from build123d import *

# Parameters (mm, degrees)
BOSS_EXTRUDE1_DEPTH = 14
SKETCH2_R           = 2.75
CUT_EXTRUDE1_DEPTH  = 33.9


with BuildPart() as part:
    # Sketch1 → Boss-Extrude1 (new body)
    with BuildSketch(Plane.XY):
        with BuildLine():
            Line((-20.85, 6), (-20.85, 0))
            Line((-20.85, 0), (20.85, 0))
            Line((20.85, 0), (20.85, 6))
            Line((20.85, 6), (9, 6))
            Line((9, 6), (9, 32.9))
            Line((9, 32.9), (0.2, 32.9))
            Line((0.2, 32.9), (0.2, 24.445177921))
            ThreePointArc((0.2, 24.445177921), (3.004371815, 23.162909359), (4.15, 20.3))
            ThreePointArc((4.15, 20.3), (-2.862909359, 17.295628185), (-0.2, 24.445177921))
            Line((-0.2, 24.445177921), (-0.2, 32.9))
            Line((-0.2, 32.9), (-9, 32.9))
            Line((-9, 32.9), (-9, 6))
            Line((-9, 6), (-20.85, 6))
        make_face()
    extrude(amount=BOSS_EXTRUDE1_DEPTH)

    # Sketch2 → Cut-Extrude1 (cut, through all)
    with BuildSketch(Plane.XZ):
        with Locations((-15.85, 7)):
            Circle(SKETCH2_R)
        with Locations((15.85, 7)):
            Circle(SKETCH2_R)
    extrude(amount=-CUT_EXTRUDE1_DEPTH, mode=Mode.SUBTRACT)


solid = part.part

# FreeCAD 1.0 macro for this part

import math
import FreeCAD as App
import Part
import Sketcher

doc = App.newDocument("Part")
body = doc.addObject("PartDesign::Body", "Body")

# Sketch on XY plane
sketch1 = body.newObject("Sketcher::SketchObject", "Sketch")
sketch1.AttachmentSupport = (doc.getObject("XY_Plane"), [""])
sketch1.MapMode = "FlatFace"
sketch1.addGeometry([
    Part.LineSegment(App.Vector(-20.9, 6, 0), App.Vector(-20.9, 0, 0)),  # 0
    Part.LineSegment(App.Vector(-20.9, 0, 0), App.Vector(20.9, 0, 0)),  # 1
    Part.LineSegment(App.Vector(20.9, 0, 0), App.Vector(20.9, 6, 0)),  # 2
    Part.LineSegment(App.Vector(20.9, 6, 0), App.Vector(9, 6, 0)),  # 3
    Part.LineSegment(App.Vector(9, 6, 0), App.Vector(9, 32.9, 0)),  # 4
    Part.LineSegment(App.Vector(9, 32.9, 0), App.Vector(0.2, 32.9, 0)),  # 5
    Part.LineSegment(App.Vector(0.2, 32.9, 0), App.Vector(0.2, 24.4, 0)),  # 6
    Part.ArcOfCircle(Part.Circle(App.Vector(0, 20.3, 0), App.Vector(0, 0, 1), 4.1), math.radians(0), math.radians(87)),  # 7
    Part.ArcOfCircle(Part.Circle(App.Vector(0, 20.3, 0), App.Vector(0, 0, 1), 4.2), math.radians(93), math.radians(360)),  # 8
    Part.LineSegment(App.Vector(-0.2, 24.4, 0), App.Vector(-0.2, 32.9, 0)),  # 9
    Part.LineSegment(App.Vector(-0.2, 32.9, 0), App.Vector(-9, 32.9, 0)),  # 10
    Part.LineSegment(App.Vector(-9, 32.9, 0), App.Vector(-9, 6, 0)),  # 11
    Part.LineSegment(App.Vector(-9, 6, 0), App.Vector(-20.9, 6, 0)),  # 12
], False)
sketch1.addConstraint([
    Sketcher.Constraint("Coincident", 0, 2, 1, 1),
    Sketcher.Constraint("Coincident", 1, 2, 2, 1),
    Sketcher.Constraint("Coincident", 2, 2, 3, 1),
    Sketcher.Constraint("Coincident", 3, 2, 4, 1),
    Sketcher.Constraint("Coincident", 4, 2, 5, 1),
    Sketcher.Constraint("Coincident", 5, 2, 6, 1),
    Sketcher.Constraint("Coincident", 6, 2, 7, 2),
    Sketcher.Constraint("Tangent", 7, 1, 8, 2),
    Sketcher.Constraint("Coincident", 8, 1, 9, 1),
    Sketcher.Constraint("Coincident", 9, 2, 10, 1),
    Sketcher.Constraint("Coincident", 10, 2, 11, 1),
    Sketcher.Constraint("Coincident", 11, 2, 12, 1),
    Sketcher.Constraint("Coincident", 12, 2, 0, 1),
    Sketcher.Constraint("Vertical", 0),
    Sketcher.Constraint("Horizontal", 1),
    Sketcher.Constraint("Vertical", 2),
    Sketcher.Constraint("Horizontal", 3),
    Sketcher.Constraint("Vertical", 4),
    Sketcher.Constraint("Horizontal", 5),
    Sketcher.Constraint("Vertical", 6),
    Sketcher.Constraint("Vertical", 9),
    Sketcher.Constraint("Horizontal", 10),
    Sketcher.Constraint("Vertical", 11),
    Sketcher.Constraint("Horizontal", 12),
    Sketcher.Constraint("Equal", 7, 8),
    Sketcher.Constraint("Symmetric", 0, 2, 1, 2, -1, 1),
    Sketcher.Constraint("Symmetric", 6, 2, 8, 1, -2),
    Sketcher.Constraint("Symmetric", 4, 2, 10, 2, -2),
    Sketcher.Constraint("Horizontal", 8, 3, 7, 1),
    Sketcher.Constraint("Horizontal", 3, 2, 11, 2),
    Sketcher.Constraint("DistanceY", 0, 2, 0, 1, 6.0),
    Sketcher.Constraint("Radius", 7, 4.15),
    Sketcher.Constraint("DistanceX", 1, 1, 1, 2, 41.7),
    Sketcher.Constraint("DistanceX", 5, 2, 5, 1, 8.8),
    Sketcher.Constraint("DistanceY", 4, 1, 4, 2, 26.9),
    Sketcher.Constraint("DistanceX", -1, 1, 3, 2, 9.0),
    Sketcher.Constraint("DistanceY", -1, 1, 7, 3, 20.3),
])
pad1 = body.newObject("PartDesign::Pad", "Pad")
pad1.Profile = sketch1
pad1.Length = 14

# Sketch on XZ plane
sketch2 = body.newObject("Sketcher::SketchObject", "Sketch001")
sketch2.AttachmentSupport = (doc.getObject("XZ_Plane"), [""])
sketch2.MapMode = "FlatFace"
sketch2.addGeometry([
    Part.Circle(App.Vector(-15.8, 7, 0), App.Vector(0, 0, 1), 2.8),
    Part.Circle(App.Vector(15.8, 7, 0), App.Vector(0, 0, 1), 2.8),
], False)
sketch2.addConstraint([
    Sketcher.Constraint("Equal", 0, 1),
    Sketcher.Constraint("Symmetric", 0, 3, 1, 3, -2),
    Sketcher.Constraint("Diameter", 0, 5.5),
    Sketcher.Constraint("DistanceY", -1, 1, 0, 3, 7.0),
    Sketcher.Constraint("DistanceX", 0, 3, 1, 3, 31.7),
])
pocket1 = body.newObject("PartDesign::Pocket", "Pocket")
pocket1.Profile = sketch2
pocket1.Type = "ThroughAll"

doc.recompute()
